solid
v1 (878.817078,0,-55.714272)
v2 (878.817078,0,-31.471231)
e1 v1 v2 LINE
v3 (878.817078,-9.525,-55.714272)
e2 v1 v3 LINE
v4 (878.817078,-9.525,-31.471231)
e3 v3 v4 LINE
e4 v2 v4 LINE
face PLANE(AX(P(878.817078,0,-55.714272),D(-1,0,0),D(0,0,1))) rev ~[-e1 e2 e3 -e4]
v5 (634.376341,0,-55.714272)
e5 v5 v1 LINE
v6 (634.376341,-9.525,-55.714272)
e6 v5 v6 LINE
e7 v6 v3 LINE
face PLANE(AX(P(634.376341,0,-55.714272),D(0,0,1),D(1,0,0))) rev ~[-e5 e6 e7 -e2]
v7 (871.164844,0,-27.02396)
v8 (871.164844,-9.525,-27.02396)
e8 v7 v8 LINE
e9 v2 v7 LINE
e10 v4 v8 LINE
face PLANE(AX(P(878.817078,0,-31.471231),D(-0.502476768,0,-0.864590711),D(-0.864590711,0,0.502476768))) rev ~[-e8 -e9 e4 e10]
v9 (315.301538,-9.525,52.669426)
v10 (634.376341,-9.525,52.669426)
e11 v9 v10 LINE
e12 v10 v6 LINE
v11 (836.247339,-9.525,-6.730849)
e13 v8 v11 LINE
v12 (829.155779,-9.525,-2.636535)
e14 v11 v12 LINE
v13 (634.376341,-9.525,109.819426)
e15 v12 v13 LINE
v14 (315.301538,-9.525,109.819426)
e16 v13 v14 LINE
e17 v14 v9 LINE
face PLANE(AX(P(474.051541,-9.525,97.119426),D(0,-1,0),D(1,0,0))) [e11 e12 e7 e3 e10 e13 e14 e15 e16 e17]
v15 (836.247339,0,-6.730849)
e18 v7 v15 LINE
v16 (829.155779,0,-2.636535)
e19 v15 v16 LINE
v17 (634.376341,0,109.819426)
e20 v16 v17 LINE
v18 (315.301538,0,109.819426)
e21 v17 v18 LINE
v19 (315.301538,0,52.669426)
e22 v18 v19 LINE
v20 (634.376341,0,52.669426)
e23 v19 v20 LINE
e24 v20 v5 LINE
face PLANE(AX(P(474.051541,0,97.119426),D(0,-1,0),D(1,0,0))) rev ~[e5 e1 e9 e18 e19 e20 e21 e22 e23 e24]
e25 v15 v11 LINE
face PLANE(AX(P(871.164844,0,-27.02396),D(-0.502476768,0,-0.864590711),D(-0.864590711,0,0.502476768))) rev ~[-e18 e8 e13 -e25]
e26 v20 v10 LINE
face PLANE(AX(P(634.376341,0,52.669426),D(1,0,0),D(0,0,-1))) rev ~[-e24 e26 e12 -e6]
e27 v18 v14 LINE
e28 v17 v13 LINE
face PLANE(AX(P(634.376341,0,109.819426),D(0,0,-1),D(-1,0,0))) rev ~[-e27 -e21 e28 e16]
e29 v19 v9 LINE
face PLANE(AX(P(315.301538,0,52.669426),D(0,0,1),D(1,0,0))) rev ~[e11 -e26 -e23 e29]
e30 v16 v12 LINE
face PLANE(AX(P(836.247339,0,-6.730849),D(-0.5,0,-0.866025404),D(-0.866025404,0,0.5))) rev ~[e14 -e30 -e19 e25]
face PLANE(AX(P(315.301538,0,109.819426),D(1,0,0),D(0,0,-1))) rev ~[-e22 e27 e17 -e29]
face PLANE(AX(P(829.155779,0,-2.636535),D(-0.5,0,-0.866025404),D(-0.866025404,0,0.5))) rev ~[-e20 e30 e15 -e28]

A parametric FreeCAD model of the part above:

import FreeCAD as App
import Part
import Sketcher
Q = App.Units.Quantity


def add_polygon(sketch, points):
    """Adds a closed chain of lines whose ends are joined by coincident constraints."""
    first, n = sketch.GeometryCount, len(points)
    for a, b in zip(points, points[1:] + points[:1]):
        sketch.addGeometry(Part.LineSegment(App.Vector(*a, 0), App.Vector(*b, 0)), False)
    for i in range(n):
        sketch.addConstraint(Sketcher.Constraint("Coincident", first + i, 2, first + (i + 1) % n, 1))

doc = App.newDocument("Part")
body = doc.addObject("PartDesign::Body", "Body")

# Sketch on XZ plane
sketch1 = body.newObject("Sketcher::SketchObject", "Sketch")
sketch1.AttachmentSupport = (doc.getObject("XZ_Plane"), [""])
sketch1.MapMode = "FlatFace"
add_polygon(sketch1, [(315.301538, 109.819426), (315.301538, 52.669426), (634.376341, 52.669426), (634.376341, -55.714272), (878.817078, -55.714272), (878.817078, -31.471231), (871.164844, -27.02396), (836.247339, -6.730849), (829.155779, -2.636535), (634.376341, 109.819426)])  # lines 0-9
sketch1.addConstraint([
    Sketcher.Constraint("Vertical", 0),
    Sketcher.Constraint("Horizontal", 1),
    Sketcher.Constraint("Vertical", 2),
    Sketcher.Constraint("Horizontal", 3),
    Sketcher.Constraint("Vertical", 4),
    Sketcher.Constraint("Horizontal", 9),
    Sketcher.Constraint("Parallel", 5, 6),
    Sketcher.Constraint("Parallel", 7, 8),
    Sketcher.Constraint("Vertical", 2, 2, 8, 2),
    Sketcher.Constraint("Angle", 7, Q("150 deg")),
    Sketcher.Constraint("DistanceY", 0, 2, 0, 1, Q("2.25 in")),
    Sketcher.Constraint("DistanceX", 1, 1, 1, 2, Q("12.5620001 in")),
    Sketcher.Constraint("Distance", 8, Q("8.8548001 in")),
    Sketcher.Constraint("DistanceY", 2, 2, 2, 1, Q("108.383698 mm")),
    Sketcher.Constraint("Distance", 5, Q("8.850701 mm")),
    Sketcher.Constraint("DistanceY", 4, 1, 4, 2, Q("24.243041 mm")),
    Sketcher.Constraint("DistanceX", 2, 2, 6, 2, Q("201.870999 mm")),
    Sketcher.Constraint("DistanceX", 7, 2, 4, 2, Q("49.661299 mm")),
    Sketcher.Constraint("DistanceX", -1, 1, 1, 2, Q("634.376341 mm")),
    Sketcher.Constraint("DistanceY", 2, 2, -1, 1, Q("55.714272 mm")),
])
pad1 = body.newObject("PartDesign::Pad", "Pad")
pad1.Profile = sketch1
pad1.Length = Q("0.375 in")

doc.recompute()
